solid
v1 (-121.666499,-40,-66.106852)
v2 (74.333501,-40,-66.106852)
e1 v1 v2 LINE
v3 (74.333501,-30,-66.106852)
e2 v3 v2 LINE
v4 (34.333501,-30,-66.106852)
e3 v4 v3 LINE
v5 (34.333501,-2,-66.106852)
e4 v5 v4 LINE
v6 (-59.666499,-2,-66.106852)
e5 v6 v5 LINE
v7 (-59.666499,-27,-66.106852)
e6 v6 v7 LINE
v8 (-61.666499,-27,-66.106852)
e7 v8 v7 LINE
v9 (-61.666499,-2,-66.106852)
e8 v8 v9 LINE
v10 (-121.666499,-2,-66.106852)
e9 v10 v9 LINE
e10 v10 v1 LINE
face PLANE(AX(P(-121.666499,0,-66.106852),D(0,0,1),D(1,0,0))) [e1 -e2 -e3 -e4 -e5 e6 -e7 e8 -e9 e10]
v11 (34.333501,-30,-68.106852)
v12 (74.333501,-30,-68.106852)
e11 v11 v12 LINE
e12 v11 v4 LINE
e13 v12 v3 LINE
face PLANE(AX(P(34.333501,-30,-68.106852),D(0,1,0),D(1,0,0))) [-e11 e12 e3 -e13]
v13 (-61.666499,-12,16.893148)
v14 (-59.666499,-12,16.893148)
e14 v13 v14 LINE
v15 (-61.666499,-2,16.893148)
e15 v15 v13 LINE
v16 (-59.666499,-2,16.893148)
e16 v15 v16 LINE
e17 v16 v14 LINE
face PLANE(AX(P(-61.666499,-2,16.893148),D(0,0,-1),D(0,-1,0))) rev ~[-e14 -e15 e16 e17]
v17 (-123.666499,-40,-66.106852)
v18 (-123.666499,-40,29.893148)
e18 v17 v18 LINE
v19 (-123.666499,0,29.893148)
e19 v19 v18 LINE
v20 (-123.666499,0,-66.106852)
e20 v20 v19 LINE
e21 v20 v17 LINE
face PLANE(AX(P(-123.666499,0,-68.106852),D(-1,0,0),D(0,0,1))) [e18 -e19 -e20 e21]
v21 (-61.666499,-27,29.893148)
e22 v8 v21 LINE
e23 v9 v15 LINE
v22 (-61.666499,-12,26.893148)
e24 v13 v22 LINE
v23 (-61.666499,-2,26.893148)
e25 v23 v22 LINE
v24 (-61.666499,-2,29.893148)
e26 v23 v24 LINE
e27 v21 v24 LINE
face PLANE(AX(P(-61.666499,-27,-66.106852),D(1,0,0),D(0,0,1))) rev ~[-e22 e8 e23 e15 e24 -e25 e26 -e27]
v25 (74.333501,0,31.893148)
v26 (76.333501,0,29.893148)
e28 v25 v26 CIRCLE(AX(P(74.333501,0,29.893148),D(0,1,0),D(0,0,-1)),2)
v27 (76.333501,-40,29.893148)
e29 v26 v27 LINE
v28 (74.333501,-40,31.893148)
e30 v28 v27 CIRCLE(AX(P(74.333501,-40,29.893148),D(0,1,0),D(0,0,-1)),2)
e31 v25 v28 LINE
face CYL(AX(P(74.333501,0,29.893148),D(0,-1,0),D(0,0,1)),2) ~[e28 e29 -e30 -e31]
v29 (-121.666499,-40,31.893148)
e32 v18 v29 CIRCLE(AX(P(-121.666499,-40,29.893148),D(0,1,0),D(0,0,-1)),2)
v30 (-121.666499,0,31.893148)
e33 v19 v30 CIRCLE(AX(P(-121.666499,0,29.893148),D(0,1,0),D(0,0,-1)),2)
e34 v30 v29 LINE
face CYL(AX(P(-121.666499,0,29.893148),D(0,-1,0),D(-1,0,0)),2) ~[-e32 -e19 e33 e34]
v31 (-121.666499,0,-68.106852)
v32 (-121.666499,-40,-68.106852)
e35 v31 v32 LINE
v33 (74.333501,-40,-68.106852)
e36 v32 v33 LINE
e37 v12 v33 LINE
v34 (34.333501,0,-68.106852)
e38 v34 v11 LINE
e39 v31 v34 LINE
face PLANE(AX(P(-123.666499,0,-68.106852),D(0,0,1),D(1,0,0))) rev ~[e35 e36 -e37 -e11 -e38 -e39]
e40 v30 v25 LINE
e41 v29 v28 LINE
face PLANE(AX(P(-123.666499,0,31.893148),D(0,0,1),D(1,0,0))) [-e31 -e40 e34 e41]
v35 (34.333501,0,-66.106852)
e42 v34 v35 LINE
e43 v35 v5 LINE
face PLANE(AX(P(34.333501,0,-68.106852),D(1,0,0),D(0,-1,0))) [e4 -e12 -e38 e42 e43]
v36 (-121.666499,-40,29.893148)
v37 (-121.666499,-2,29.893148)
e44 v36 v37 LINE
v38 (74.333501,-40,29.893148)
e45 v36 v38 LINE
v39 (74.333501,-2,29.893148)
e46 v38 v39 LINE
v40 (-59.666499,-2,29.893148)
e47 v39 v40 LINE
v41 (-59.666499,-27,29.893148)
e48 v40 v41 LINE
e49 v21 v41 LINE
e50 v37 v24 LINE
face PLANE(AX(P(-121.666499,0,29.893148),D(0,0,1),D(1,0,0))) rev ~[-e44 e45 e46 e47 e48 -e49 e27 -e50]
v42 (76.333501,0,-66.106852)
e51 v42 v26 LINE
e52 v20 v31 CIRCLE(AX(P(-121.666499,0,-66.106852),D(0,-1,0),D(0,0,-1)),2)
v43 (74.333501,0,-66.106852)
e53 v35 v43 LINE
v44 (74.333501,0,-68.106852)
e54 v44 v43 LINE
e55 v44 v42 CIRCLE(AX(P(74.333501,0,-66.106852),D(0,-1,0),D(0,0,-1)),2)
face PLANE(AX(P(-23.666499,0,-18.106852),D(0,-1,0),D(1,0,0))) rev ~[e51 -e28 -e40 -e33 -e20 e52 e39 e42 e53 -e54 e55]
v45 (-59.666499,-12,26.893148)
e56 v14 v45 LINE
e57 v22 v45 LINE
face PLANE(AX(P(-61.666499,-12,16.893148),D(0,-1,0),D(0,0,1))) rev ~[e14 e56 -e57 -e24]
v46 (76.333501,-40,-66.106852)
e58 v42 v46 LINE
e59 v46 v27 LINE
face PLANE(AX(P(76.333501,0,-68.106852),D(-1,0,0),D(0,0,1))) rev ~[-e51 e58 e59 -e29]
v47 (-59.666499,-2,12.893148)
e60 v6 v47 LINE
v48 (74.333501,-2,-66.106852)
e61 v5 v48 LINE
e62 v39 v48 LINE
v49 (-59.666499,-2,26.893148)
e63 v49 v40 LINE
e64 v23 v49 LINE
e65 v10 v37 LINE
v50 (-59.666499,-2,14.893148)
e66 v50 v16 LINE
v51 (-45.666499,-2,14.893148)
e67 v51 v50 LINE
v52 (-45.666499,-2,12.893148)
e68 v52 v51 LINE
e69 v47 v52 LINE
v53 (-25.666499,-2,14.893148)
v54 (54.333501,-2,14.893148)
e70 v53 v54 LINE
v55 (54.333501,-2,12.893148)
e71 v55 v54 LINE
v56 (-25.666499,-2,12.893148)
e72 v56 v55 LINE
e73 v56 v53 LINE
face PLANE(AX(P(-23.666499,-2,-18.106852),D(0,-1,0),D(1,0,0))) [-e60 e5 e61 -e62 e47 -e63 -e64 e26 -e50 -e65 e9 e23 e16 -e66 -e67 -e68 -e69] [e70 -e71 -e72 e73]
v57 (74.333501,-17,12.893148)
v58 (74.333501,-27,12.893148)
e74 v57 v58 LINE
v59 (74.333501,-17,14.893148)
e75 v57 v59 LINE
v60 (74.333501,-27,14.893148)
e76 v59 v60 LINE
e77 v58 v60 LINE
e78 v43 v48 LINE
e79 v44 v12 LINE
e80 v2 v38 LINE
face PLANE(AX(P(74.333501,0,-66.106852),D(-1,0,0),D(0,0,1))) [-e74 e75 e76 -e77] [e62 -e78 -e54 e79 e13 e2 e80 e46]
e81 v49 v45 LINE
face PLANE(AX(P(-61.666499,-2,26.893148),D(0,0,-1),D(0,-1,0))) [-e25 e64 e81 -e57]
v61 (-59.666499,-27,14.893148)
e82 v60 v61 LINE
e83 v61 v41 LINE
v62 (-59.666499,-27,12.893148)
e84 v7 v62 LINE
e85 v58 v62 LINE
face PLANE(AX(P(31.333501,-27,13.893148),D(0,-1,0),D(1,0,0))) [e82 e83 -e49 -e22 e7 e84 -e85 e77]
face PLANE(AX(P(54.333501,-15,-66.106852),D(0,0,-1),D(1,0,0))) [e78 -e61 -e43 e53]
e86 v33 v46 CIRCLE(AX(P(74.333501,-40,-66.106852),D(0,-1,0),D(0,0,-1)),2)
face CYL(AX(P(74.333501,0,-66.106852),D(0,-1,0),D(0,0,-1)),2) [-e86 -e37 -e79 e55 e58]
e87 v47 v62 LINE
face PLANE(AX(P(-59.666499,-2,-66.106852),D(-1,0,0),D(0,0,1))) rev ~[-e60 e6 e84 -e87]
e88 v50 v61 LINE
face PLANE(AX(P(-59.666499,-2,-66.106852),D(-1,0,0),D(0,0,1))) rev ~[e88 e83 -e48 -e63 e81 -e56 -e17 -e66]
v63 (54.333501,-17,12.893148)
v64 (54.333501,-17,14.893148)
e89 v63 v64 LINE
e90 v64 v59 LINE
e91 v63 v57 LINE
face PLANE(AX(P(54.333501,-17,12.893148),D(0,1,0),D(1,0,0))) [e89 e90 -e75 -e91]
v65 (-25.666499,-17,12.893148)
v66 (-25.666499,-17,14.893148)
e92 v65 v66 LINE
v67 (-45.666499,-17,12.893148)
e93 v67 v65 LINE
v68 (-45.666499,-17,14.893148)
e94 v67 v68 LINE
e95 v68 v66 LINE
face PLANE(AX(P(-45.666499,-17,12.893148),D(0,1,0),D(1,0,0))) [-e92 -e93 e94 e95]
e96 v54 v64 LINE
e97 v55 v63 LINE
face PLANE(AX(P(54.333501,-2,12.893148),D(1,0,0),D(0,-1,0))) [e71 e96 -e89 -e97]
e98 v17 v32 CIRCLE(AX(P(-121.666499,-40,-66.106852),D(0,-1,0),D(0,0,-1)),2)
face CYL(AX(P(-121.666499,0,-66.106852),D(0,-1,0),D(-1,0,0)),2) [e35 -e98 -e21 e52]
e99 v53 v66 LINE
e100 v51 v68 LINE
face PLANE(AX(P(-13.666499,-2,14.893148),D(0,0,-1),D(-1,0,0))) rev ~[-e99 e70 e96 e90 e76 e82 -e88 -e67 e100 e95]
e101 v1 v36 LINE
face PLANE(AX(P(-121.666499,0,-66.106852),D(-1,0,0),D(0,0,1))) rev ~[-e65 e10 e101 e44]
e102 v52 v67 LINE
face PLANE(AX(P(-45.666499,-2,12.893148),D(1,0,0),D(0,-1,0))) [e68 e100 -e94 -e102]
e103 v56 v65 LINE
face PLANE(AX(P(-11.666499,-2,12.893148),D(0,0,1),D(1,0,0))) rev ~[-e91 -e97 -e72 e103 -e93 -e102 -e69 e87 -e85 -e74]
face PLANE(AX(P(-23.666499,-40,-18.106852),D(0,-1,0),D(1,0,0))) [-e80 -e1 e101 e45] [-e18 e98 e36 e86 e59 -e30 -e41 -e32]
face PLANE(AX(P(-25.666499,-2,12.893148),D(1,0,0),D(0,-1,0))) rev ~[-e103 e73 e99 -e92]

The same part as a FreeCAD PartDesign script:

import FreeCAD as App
import Part
import Sketcher


def edges_at(feature, points):
    """Names of the edges that pass closest to the given points."""
    edges = feature.Shape.Edges
    near = lambda p: min(range(len(edges)), key=lambda i: edges[i].distToShape(Part.Vertex(*p))[0])
    return sorted({f"Edge{near(p) + 1}" for p in points})


def add_polygon(sketch, points):
    """Adds a closed chain of lines whose ends are joined by coincident constraints."""
    first, n = sketch.GeometryCount, len(points)
    for a, b in zip(points, points[1:] + points[:1]):
        sketch.addGeometry(Part.LineSegment(App.Vector(*a, 0), App.Vector(*b, 0)), False)
    for i in range(n):
        sketch.addConstraint(Sketcher.Constraint("Coincident", first + i, 2, first + (i + 1) % n, 1))

doc = App.newDocument("Part")
body = doc.addObject("PartDesign::Body", "Body")

# Sketch on XZ plane
sketch1 = doc.addObject("Sketcher::SketchObject", "Sketch")
body.addObject(sketch1)
sketch1.AttachmentSupport = (doc.XZ_Plane, [""])
sketch1.MapMode = "FlatFace"
add_polygon(sketch1, [(-124, 32), (-124, -68), (76, -68), (76, 32)])  # lines 0-3
add_polygon(sketch1, [(74, -66), (-122, -66), (-122, 30), (74, 30)])  # lines 4-7
sketch1.addConstraint([
    Sketcher.Constraint("Vertical", 0),
    Sketcher.Constraint("Horizontal", 1),
    Sketcher.Constraint("Vertical", 2),
    Sketcher.Constraint("Horizontal", 3),
    Sketcher.Constraint("Horizontal", 4),
    Sketcher.Constraint("Vertical", 5),
    Sketcher.Constraint("Horizontal", 6),
    Sketcher.Constraint("Vertical", 7),
    Sketcher.Constraint("DistanceX", 1, 1, 1, 2, 200.0),
    Sketcher.Constraint("DistanceX", 4, 2, 4, 1, 196.0),
    Sketcher.Constraint("DistanceY", 0, 2, 0, 1, 100.0),
    Sketcher.Constraint("DistanceY", 5, 1, 5, 2, 96.0),
    Sketcher.Constraint("DistanceX", 0, 2, 4, 2, 2.0),
    Sketcher.Constraint("DistanceY", 0, 2, 4, 2, 2.0),
    Sketcher.Constraint("DistanceX", 0, 2, -1, 1, 123.666499),
    Sketcher.Constraint("DistanceY", -1, 1, 2, 2, 31.893148),
])
pad1 = doc.addObject("PartDesign::Pad", "Pad")
body.addObject(pad1)
pad1.Profile = sketch1
pad1.Length = 40

# Sketch on XZ plane
sketch2 = doc.addObject("Sketcher::SketchObject", "Sketch001")
body.addObject(sketch2)
sketch2.AttachmentSupport = (doc.XZ_Plane, [""])
sketch2.MapMode = "FlatFace"
add_polygon(sketch2, [(-122, 30), (-122, -66), (74, -66), (74, 30)])  # lines 0-3
sketch2.addConstraint([
    Sketcher.Constraint("Vertical", 0),
    Sketcher.Constraint("Horizontal", 1),
    Sketcher.Constraint("Vertical", 2),
    Sketcher.Constraint("Horizontal", 3),
    Sketcher.Constraint("DistanceX", 1, 1, 1, 2, 196.0),
    Sketcher.Constraint("DistanceY", 0, 2, 0, 1, 96.0),
    Sketcher.Constraint("DistanceX", 0, 2, -1, 1, 121.666499),
    Sketcher.Constraint("DistanceY", -1, 1, 2, 2, 29.893148),
])
pad2 = doc.addObject("PartDesign::Pad", "Pad001")
body.addObject(pad2)
pad2.Profile = sketch2
pad2.Length = 2

# Sketch on XZ plane
sketch3 = doc.addObject("Sketcher::SketchObject", "Sketch002")
body.addObject(sketch3)
sketch3.AttachmentSupport = (doc.XZ_Plane, [""])
sketch3.MapMode = "FlatFace"
sketch3.AttachmentOffset = App.Placement(App.Vector(0, 0, 2), App.Rotation())
add_polygon(sketch3, [(-122, 30), (-122, -66), (-60, -66), (-60, 30)])  # lines 0-3
sketch3.addConstraint([
    Sketcher.Constraint("Vertical", 0),
    Sketcher.Constraint("Horizontal", 1),
    Sketcher.Constraint("Vertical", 2),
    Sketcher.Constraint("Horizontal", 3),
    Sketcher.Constraint("DistanceX", 1, 1, 1, 2, 62.0),
    Sketcher.Constraint("DistanceY", 0, 2, 0, 1, 96.0),
    Sketcher.Constraint("DistanceX", 0, 2, -1, 1, 121.666499),
    Sketcher.Constraint("DistanceY", -1, 1, 2, 2, 29.893148),
])
pad3 = doc.addObject("PartDesign::Pad", "Pad002")
body.addObject(pad3)
pad3.Profile = sketch3
pad3.Length = 25

# Sketch on XZ plane
sketch4 = doc.addObject("Sketcher::SketchObject", "Sketch003")
body.addObject(sketch4)
sketch4.AttachmentSupport = (doc.XZ_Plane, [""])
sketch4.MapMode = "FlatFace"
sketch4.AttachmentOffset = App.Placement(App.Vector(0, 0, 27), App.Rotation())
add_polygon(sketch4, [(-122, 30), (-122, -66), (-62, -66), (-62, 30)])  # lines 0-3
sketch4.addConstraint([
    Sketcher.Constraint("Vertical", 0),
    Sketcher.Constraint("Horizontal", 1),
    Sketcher.Constraint("Vertical", 2),
    Sketcher.Constraint("Horizontal", 3),
    Sketcher.Constraint("DistanceX", 1, 1, 1, 2, 60.0),
    Sketcher.Constraint("DistanceY", 0, 2, 0, 1, 96.0),
    Sketcher.Constraint("DistanceX", 0, 2, -1, 1, 121.666499),
    Sketcher.Constraint("DistanceY", -1, 1, 2, 2, 29.893148),
])
pocket1 = doc.addObject("PartDesign::Pocket", "Pocket")
body.addObject(pocket1)
pocket1.Profile = sketch4
pocket1.Length = 25

# Sketch on XZ plane
sketch5 = doc.addObject("Sketcher::SketchObject", "Sketch004")
body.addObject(sketch5)
sketch5.AttachmentSupport = (doc.XZ_Plane, [""])
sketch5.MapMode = "FlatFace"
sketch5.AttachmentOffset = App.Placement(App.Vector(0, 0, 2), App.Rotation())
add_polygon(sketch5, [(-11.7, 29.9), (-13.7, 29.9), (-13.7, 14.9), (-59.7, 14.9), (-59.7, 12.9), (-11.7, 12.9)])  # lines 0-5
sketch5.addConstraint([
    Sketcher.Constraint("Horizontal", 0),
    Sketcher.Constraint("Vertical", 1),
    Sketcher.Constraint("Horizontal", 2),
    Sketcher.Constraint("Vertical", 3),
    Sketcher.Constraint("Horizontal", 4),
    Sketcher.Constraint("Vertical", 5),
    Sketcher.Constraint("Equal", 0, 3),
    Sketcher.Constraint("DistanceX", 0, 2, 0, 1, 2.0),
    Sketcher.Constraint("DistanceX", 2, 2, 2, 1, 46.0),
    Sketcher.Constraint("DistanceY", 1, 2, 1, 1, 15.0),
    Sketcher.Constraint("DistanceX", 0, 2, -1, 1, 13.666499),
    Sketcher.Constraint("DistanceY", -1, 1, 0, 2, 29.893148),
])
pad4 = doc.addObject("PartDesign::Pad", "Pad003")
body.addObject(pad4)
pad4.Profile = sketch5
pad4.Length = 25

# Sketch on XY plane
sketch6 = doc.addObject("Sketcher::SketchObject", "Sketch005")
body.addObject(sketch6)
sketch6.AttachmentSupport = (doc.XY_Plane, [""])
sketch6.MapMode = "FlatFace"
sketch6.AttachmentOffset = App.Placement(App.Vector(0, 0, 12.893148), App.Rotation())
add_polygon(sketch6, [(-7, -12), (-7, -2), (7, -2), (7, -12)])  # lines 0-3
sketch6.addConstraint([
    Sketcher.Constraint("Vertical", 0),
    Sketcher.Constraint("Horizontal", 1),
    Sketcher.Constraint("Vertical", 2),
    Sketcher.Constraint("Horizontal", 3),
    Sketcher.Constraint("DistanceX", 1, 1, 1, 2, 14.0),
    Sketcher.Constraint("DistanceY", 0, 1, 0, 2, 10.0),
    Sketcher.Constraint("DistanceY", 0, 2, -1, 1, 2.0),
    Sketcher.Constraint("DistanceX", 0, 2, -1, 1, 6.921517),
])
pocket2 = doc.addObject("PartDesign::Pocket", "Pocket001")
body.addObject(pocket2)
pocket2.Profile = sketch6
pocket2.Length = 5
pocket2.Reversed = True

# Sketch on YZ plane
sketch7 = doc.addObject("Sketcher::SketchObject", "Sketch006")
body.addObject(sketch7)
sketch7.AttachmentSupport = (doc.YZ_Plane, [""])
sketch7.MapMode = "FlatFace"
sketch7.AttachmentOffset = App.Placement(App.Vector(0, 0, -61.666499), App.Rotation())
add_polygon(sketch7, [(-2, 27), (-2, 17), (-12, 17), (-12, 27)])  # lines 0-3
sketch7.addConstraint([
    Sketcher.Constraint("Vertical", 0),
    Sketcher.Constraint("Horizontal", 1),
    Sketcher.Constraint("Vertical", 2),
    Sketcher.Constraint("Horizontal", 3),
    Sketcher.Constraint("Equal", 3, 0),
    Sketcher.Constraint("DistanceX", 1, 2, 1, 1, 10.0),
    Sketcher.Constraint("DistanceX", 0, 2, -1, 1, 2.0),
    Sketcher.Constraint("DistanceY", -1, 1, 0, 2, 16.893148),
])
pocket3 = doc.addObject("PartDesign::Pocket", "Pocket002")
body.addObject(pocket3)
pocket3.Profile = sketch7
pocket3.Length = 5
pocket3.Reversed = True
doc.recompute()

fillet = doc.addObject("PartDesign::Fillet", "Fillet")
body.addObject(fillet)
fillet.Base = (pocket3, edges_at(pocket3, [
    (76.334, -20, -68.107),
    (76.334, -20, 31.893),
    (-123.666, -20, -68.107),
    (-123.666, -20, 31.893),
]))
fillet.Radius = 2

# Sketch on XY plane
sketch8 = doc.addObject("Sketcher::SketchObject", "Sketch007")
body.addObject(sketch8)
sketch8.AttachmentSupport = (doc.XY_Plane, [""])
sketch8.MapMode = "FlatFace"
sketch8.AttachmentOffset = App.Placement(App.Vector(0, 0, 12.893148), App.Rotation())
add_polygon(sketch8, [(-46, -17), (-46, -2), (-26, -2), (-26, -17)])  # lines 0-3
sketch8.addConstraint([
    Sketcher.Constraint("Vertical", 0),
    Sketcher.Constraint("Horizontal", 1),
    Sketcher.Constraint("Vertical", 2),
    Sketcher.Constraint("Horizontal", 3),
    Sketcher.Constraint("DistanceX", 1, 1, 1, 2, 20.0),
    Sketcher.Constraint("DistanceY", 0, 1, 0, 2, 15.0),
    Sketcher.Constraint("DistanceY", 0, 2, -1, 1, 2.0),
    Sketcher.Constraint("DistanceX", 0, 2, -1, 1, 45.666499),
])
pocket4 = doc.addObject("PartDesign::Pocket", "Pocket003")
body.addObject(pocket4)
pocket4.Profile = sketch8
pocket4.Length = 2
pocket4.Reversed = True

# Sketch on YZ plane
sketch9 = doc.addObject("Sketcher::SketchObject", "Sketch008")
body.addObject(sketch9)
sketch9.AttachmentSupport = (doc.YZ_Plane, [""])
sketch9.MapMode = "FlatFace"
sketch9.AttachmentOffset = App.Placement(App.Vector(0, 0, -11.666499), App.Rotation())
add_polygon(sketch9, [(-17, 26), (-17, 16), (-2, 16), (-2, 26)])  # lines 0-3
sketch9.addConstraint([
    Sketcher.Constraint("Vertical", 0),
    Sketcher.Constraint("Horizontal", 1),
    Sketcher.Constraint("Vertical", 2),
    Sketcher.Constraint("Horizontal", 3),
    Sketcher.Constraint("DistanceX", 1, 1, 1, 2, 15.0),
    Sketcher.Constraint("DistanceY", 0, 2, 0, 1, 10.0),
    Sketcher.Constraint("DistanceX", 0, 2, -1, 1, 17.0),
    Sketcher.Constraint("DistanceY", -1, 1, 0, 2, 16.393148),
])
pocket5 = doc.addObject("PartDesign::Pocket", "Pocket004")
body.addObject(pocket5)
pocket5.Profile = sketch9
pocket5.Length = 2

# Sketch on XZ plane
sketch10 = doc.addObject("Sketcher::SketchObject", "Sketch009")
body.addObject(sketch10)
sketch10.AttachmentSupport = (doc.XZ_Plane, [""])
sketch10.MapMode = "FlatFace"
sketch10.AttachmentOffset = App.Placement(App.Vector(0, 0, 2), App.Rotation())
add_polygon(sketch10, [(-11.7, 14.9), (-11.7, 12.9), (74.3, 12.9), (74.3, 14.9)])  # lines 0-3
add_polygon(sketch10, [(-11.7, 29.9), (-11.7, 27.9), (74.3, 27.9), (74.3, 29.9)])  # lines 4-7
sketch10.addConstraint([
    Sketcher.Constraint("Vertical", 0),
    Sketcher.Constraint("Horizontal", 1),
    Sketcher.Constraint("Vertical", 2),
    Sketcher.Constraint("Horizontal", 3),
    Sketcher.Constraint("Vertical", 4),
    Sketcher.Constraint("Horizontal", 5),
    Sketcher.Constraint("Vertical", 6),
    Sketcher.Constraint("Horizontal", 7),
    Sketcher.Constraint("Vertical", 3, 2, 4, 2),
    Sketcher.Constraint("Vertical", 2, 2, 5, 2),
    Sketcher.Constraint("Equal", 2, 4),
    Sketcher.Constraint("DistanceX", 1, 1, 1, 2, 86.0),
    Sketcher.Constraint("DistanceY", 0, 2, 0, 1, 2.0),
    Sketcher.Constraint("DistanceY", 3, 2, 4, 2, 13.0),
    Sketcher.Constraint("DistanceX", 0, 2, -1, 1, 11.666499),
    Sketcher.Constraint("DistanceY", -1, 1, 4, 2, 27.893148),
])
pad5 = doc.addObject("PartDesign::Pad", "Pad004")
body.addObject(pad5)
pad5.Profile = sketch10
pad5.Length = 25

# Sketch on YZ plane
sketch11 = doc.addObject("Sketcher::SketchObject", "Sketch010")
body.addObject(sketch11)
sketch11.AttachmentSupport = (doc.YZ_Plane, [""])
sketch11.MapMode = "FlatFace"
sketch11.AttachmentOffset = App.Placement(App.Vector(0, 0, -13.666499), App.Rotation())
add_polygon(sketch11, [(-2, 30), (-2, 15), (-27, 15), (-27, 30)])  # lines 0-3
sketch11.addConstraint([
    Sketcher.Constraint("Vertical", 0),
    Sketcher.Constraint("Horizontal", 1),
    Sketcher.Constraint("Vertical", 2),
    Sketcher.Constraint("Horizontal", 3),
    Sketcher.Constraint("DistanceX", 1, 2, 1, 1, 25.0),
    Sketcher.Constraint("DistanceY", 0, 2, 0, 1, 15.0),
    Sketcher.Constraint("DistanceX", 0, 2, -1, 1, 2.0),
    Sketcher.Constraint("DistanceY", -1, 1, 2, 2, 29.893148),
])
pocket6 = doc.addObject("PartDesign::Pocket", "Pocket005")
body.addObject(pocket6)
pocket6.Profile = sketch11
pocket6.Length = 88
pocket6.Reversed = True

# Sketch on XY plane
sketch12 = doc.addObject("Sketcher::SketchObject", "Sketch011")
body.addObject(sketch12)
sketch12.AttachmentSupport = (doc.XY_Plane, [""])
sketch12.MapMode = "FlatFace"
sketch12.AttachmentOffset = App.Placement(App.Vector(0, 0, -68.106852), App.Rotation())
add_polygon(sketch12, [(34, -30), (34, 0), (74, 0), (74, -30)])  # lines 0-3
sketch12.addConstraint([
    Sketcher.Constraint("Vertical", 0),
    Sketcher.Constraint("Horizontal", 1),
    Sketcher.Constraint("Vertical", 2),
    Sketcher.Constraint("Horizontal", 3),
    Sketcher.Constraint("PointOnObject", 0, 2, -1),
    Sketcher.Constraint("DistanceX", 1, 1, 1, 2, 40.0),
    Sketcher.Constraint("DistanceY", 0, 1, 0, 2, 30.0),
    Sketcher.Constraint("DistanceX", -1, 1, 0, 2, 34.333501),
])
pocket7 = doc.addObject("PartDesign::Pocket", "Pocket006")
body.addObject(pocket7)
pocket7.Profile = sketch12
pocket7.Length = 2
pocket7.Reversed = True

# Sketch on XY plane
sketch13 = doc.addObject("Sketcher::SketchObject", "Sketch012")
body.addObject(sketch13)
sketch13.AttachmentSupport = (doc.XY_Plane, [""])
sketch13.MapMode = "FlatFace"
sketch13.AttachmentOffset = App.Placement(App.Vector(0, 0, 12.893148), App.Rotation())
add_polygon(sketch13, [(54, -17), (54, -2), (74, -2), (74, -17)])  # lines 0-3
sketch13.addConstraint([
    Sketcher.Constraint("Vertical", 0),
    Sketcher.Constraint("Horizontal", 1),
    Sketcher.Constraint("Vertical", 2),
    Sketcher.Constraint("Horizontal", 3),
    Sketcher.Constraint("DistanceX", 1, 1, 1, 2, 20.0),
    Sketcher.Constraint("DistanceY", 0, 1, 0, 2, 15.0),
    Sketcher.Constraint("DistanceY", 0, 2, -1, 1, 2.0),
    Sketcher.Constraint("DistanceX", -1, 1, 0, 2, 54.333501),
])
pocket8 = doc.addObject("PartDesign::Pocket", "Pocket007")
body.addObject(pocket8)
pocket8.Profile = sketch13
pocket8.Length = 2
pocket8.Reversed = True

doc.recompute()
